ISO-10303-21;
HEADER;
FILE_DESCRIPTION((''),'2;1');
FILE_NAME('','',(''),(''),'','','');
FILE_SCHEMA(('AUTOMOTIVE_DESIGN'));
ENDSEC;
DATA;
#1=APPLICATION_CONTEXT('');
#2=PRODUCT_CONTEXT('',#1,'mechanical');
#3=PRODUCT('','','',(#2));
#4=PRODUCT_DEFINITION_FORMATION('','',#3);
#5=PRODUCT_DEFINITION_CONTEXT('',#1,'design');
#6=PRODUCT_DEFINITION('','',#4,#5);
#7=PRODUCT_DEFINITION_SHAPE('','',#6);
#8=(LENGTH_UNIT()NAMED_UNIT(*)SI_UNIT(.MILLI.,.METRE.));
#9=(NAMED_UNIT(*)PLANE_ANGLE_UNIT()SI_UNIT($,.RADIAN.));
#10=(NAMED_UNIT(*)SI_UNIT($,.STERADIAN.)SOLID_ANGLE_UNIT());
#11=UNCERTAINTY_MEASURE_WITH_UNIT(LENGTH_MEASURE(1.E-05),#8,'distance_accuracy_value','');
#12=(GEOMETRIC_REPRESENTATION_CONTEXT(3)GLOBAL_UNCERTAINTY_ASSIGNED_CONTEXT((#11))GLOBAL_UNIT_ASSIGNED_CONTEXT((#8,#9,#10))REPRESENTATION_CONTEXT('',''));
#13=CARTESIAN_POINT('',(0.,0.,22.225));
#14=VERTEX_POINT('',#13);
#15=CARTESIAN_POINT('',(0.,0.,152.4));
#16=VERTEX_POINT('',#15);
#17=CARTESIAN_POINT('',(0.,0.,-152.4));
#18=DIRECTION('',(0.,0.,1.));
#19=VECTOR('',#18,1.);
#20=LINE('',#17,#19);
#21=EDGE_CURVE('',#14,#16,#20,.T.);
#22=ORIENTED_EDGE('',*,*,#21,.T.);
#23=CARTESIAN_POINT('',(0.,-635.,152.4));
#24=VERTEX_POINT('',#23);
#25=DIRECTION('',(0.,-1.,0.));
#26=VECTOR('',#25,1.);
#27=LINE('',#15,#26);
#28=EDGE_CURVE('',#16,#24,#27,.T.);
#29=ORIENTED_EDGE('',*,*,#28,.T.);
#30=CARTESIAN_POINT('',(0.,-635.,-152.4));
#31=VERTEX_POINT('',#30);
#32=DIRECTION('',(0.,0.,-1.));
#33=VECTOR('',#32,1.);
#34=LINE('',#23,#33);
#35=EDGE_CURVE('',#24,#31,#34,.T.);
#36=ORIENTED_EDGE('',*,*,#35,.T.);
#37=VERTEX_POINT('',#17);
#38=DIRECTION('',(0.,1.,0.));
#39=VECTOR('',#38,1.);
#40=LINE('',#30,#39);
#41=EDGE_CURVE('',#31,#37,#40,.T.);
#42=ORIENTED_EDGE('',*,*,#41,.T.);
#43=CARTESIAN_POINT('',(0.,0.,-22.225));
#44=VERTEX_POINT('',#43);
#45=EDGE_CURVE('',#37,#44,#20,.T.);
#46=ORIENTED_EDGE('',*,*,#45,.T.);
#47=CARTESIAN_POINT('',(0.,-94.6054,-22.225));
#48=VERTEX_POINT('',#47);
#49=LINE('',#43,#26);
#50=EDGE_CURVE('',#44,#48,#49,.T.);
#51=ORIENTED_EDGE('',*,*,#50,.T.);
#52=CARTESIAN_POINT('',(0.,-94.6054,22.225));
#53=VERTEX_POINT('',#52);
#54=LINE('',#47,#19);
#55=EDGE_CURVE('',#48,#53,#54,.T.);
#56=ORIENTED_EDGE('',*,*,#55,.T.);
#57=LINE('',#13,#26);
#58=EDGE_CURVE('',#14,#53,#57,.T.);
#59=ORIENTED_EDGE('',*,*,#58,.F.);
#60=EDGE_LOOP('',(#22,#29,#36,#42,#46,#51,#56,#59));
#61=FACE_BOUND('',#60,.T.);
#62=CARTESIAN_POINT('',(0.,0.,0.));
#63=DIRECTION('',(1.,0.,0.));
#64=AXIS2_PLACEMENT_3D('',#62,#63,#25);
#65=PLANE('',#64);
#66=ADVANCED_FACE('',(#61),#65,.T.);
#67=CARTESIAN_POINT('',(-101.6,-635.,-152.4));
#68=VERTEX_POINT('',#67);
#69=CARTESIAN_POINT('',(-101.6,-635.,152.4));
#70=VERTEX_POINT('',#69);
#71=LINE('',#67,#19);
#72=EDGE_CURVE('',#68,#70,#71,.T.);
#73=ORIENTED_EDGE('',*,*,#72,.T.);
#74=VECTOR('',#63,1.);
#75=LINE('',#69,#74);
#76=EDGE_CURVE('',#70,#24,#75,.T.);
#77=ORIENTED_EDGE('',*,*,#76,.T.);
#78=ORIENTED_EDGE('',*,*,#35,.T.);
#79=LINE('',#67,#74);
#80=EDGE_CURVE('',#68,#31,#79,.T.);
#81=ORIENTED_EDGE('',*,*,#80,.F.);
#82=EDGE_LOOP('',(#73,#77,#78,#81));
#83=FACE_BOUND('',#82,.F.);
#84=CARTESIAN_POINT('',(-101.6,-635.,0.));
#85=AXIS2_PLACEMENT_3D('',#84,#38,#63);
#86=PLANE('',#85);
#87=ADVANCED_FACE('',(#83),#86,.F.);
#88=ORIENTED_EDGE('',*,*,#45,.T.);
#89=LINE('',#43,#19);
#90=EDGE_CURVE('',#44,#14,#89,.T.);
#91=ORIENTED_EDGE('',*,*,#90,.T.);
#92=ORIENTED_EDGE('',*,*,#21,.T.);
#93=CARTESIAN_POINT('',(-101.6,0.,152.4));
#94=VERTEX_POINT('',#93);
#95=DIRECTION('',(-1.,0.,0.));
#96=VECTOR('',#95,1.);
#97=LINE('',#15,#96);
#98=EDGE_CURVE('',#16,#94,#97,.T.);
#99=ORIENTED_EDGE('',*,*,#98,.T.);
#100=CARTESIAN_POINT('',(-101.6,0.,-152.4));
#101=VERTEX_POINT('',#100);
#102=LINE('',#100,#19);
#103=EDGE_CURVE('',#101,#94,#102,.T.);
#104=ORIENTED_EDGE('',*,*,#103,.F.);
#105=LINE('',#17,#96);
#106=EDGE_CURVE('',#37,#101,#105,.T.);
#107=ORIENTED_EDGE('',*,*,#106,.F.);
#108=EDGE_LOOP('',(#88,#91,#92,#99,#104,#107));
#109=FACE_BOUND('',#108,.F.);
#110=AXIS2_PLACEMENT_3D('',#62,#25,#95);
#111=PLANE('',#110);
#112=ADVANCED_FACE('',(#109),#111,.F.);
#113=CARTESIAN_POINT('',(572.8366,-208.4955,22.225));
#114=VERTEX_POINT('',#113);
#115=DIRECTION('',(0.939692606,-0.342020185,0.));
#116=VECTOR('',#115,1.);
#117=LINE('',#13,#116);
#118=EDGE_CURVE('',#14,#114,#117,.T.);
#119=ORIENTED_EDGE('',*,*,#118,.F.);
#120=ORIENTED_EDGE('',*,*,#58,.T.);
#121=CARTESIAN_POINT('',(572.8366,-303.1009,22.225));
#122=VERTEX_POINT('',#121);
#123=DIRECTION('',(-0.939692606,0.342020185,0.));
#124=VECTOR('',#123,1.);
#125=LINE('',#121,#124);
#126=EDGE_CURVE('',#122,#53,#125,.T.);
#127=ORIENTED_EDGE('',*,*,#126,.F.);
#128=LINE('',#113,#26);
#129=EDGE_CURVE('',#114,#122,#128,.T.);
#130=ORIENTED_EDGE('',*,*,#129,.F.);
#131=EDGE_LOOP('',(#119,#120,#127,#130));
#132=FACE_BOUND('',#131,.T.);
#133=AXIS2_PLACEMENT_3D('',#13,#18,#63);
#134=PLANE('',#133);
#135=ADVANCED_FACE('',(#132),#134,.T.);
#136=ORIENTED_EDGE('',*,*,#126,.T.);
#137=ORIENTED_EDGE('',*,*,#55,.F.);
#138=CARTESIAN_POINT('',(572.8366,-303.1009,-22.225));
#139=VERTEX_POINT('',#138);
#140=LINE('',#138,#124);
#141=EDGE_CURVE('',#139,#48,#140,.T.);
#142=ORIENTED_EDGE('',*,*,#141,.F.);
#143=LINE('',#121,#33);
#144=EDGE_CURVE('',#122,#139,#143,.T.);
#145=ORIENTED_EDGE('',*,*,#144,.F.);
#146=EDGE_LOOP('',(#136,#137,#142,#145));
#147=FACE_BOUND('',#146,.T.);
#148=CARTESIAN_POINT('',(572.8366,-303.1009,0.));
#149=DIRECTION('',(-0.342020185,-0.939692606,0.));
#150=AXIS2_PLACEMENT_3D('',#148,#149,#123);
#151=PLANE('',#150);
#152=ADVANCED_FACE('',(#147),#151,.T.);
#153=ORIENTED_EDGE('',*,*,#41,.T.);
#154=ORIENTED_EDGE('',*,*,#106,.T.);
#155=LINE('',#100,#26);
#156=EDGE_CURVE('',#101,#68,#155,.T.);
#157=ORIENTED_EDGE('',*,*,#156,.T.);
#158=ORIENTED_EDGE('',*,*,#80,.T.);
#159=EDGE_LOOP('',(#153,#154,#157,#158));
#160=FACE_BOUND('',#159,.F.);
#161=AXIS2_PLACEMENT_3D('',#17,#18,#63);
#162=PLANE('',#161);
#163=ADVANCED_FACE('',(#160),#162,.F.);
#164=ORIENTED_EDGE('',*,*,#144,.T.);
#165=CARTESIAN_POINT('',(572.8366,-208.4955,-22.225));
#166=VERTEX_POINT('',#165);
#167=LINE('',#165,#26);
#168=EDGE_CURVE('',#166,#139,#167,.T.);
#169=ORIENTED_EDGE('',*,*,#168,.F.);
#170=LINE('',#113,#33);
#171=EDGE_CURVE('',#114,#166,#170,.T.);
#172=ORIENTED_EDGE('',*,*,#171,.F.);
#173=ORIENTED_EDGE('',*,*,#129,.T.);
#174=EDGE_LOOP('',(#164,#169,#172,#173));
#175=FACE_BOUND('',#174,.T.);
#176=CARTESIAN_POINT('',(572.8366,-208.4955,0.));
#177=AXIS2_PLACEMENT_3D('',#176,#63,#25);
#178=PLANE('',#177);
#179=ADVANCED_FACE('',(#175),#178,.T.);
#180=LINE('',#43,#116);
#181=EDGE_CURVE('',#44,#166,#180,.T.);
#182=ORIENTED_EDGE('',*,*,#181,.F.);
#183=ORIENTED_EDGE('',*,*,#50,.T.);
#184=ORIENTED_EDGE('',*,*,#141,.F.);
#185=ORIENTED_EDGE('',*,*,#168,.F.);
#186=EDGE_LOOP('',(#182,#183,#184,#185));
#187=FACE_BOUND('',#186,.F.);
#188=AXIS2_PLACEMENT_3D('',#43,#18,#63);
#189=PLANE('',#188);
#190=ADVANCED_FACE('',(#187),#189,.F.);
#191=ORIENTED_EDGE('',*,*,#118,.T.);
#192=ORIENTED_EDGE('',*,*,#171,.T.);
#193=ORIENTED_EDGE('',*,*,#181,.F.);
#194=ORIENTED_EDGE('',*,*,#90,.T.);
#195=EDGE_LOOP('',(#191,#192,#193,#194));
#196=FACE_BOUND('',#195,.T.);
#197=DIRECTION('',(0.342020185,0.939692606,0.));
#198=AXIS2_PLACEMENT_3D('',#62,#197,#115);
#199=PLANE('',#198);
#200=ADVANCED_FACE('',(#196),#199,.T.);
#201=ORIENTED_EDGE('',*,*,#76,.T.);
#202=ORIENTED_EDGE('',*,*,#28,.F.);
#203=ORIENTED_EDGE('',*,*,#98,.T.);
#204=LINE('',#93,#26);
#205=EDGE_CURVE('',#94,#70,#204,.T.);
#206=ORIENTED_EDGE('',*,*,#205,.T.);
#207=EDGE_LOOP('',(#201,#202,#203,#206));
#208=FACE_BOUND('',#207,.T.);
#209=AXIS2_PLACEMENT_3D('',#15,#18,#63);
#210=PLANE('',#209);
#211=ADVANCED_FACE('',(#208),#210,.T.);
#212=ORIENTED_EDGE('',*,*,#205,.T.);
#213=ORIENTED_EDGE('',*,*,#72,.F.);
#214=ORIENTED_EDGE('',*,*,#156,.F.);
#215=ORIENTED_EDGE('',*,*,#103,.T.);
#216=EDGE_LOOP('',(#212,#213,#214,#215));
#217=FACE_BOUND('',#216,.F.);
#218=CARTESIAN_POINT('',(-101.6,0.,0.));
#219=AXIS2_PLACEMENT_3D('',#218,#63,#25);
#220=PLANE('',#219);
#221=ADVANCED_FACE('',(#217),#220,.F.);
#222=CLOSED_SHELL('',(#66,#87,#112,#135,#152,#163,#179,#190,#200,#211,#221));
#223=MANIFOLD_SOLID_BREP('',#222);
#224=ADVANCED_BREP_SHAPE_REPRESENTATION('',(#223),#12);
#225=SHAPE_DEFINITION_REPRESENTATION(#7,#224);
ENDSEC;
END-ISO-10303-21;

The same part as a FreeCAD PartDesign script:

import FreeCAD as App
import Part
import Sketcher
Q = App.Units.Quantity

doc = App.newDocument("Part")
body = doc.addObject("PartDesign::Body", "Body")

sketch1 = body.newObject("Sketcher::SketchObject", "Sketch")
sketch1.AttachmentSupport = (doc.getObject("XY_Plane"), [""])
sketch1.MapMode = "FlatFace"
sketch1.addGeometry([
    Part.LineSegment(App.Vector(0, -635, 0), App.Vector(0, 0, 0)),
    Part.LineSegment(App.Vector(0, 0, 0), App.Vector(-101.6, 0, 0)),
    Part.LineSegment(App.Vector(-101.6, 0, 0), App.Vector(-101.6, -635, 0)),
    Part.LineSegment(App.Vector(-101.6, -635, 0), App.Vector(0, -635, 0)),
], False)
sketch1.addConstraint([
    Sketcher.Constraint("Coincident", 0, 2, 1, 1),
    Sketcher.Constraint("Coincident", 1, 2, 2, 1),
    Sketcher.Constraint("Coincident", 2, 2, 3, 1),
    Sketcher.Constraint("Coincident", 3, 2, 0, 1),
    Sketcher.Constraint("Vertical", 0),
    Sketcher.Constraint("Horizontal", 1),
    Sketcher.Constraint("Vertical", 2),
    Sketcher.Constraint("Horizontal", 3),
    Sketcher.Constraint("Coincident", 0, 2, -1, 1),
    Sketcher.Constraint("DistanceX", 1, 2, 1, 1, Q("4 in")),
    Sketcher.Constraint("DistanceY", 0, 1, 0, 2, Q("25 in")),
])
pad1 = body.newObject("PartDesign::Pad", "Pad")
pad1.Profile = sketch1
pad1.Length = Q("12 in")
pad1.Midplane = True

sketch2 = body.newObject("Sketcher::SketchObject", "Sketch001")
sketch2.AttachmentSupport = (doc.getObject("XY_Plane"), [""])
sketch2.MapMode = "FlatFace"
sketch2.addGeometry([
    Part.LineSegment(App.Vector(572.8366, -208.4955, 0), App.Vector(0, 0, 0)),
    Part.LineSegment(App.Vector(0, 0, 0), App.Vector(0, -94.6054, 0)),
    Part.LineSegment(App.Vector(0, -94.6054, 0), App.Vector(572.8366, -303.1009, 0)),
    Part.LineSegment(App.Vector(572.8366, -303.1009, 0), App.Vector(572.8366, -208.4955, 0)),
], False)
sketch2.addConstraint([
    Sketcher.Constraint("Coincident", 0, 2, 1, 1),
    Sketcher.Constraint("Coincident", 1, 2, 2, 1),
    Sketcher.Constraint("Coincident", 2, 2, 3, 1),
    Sketcher.Constraint("Coincident", 3, 2, 0, 1),
    Sketcher.Constraint("Vertical", 1),
    Sketcher.Constraint("Vertical", 3),
    Sketcher.Constraint("Coincident", 0, 2, -1, 1),
    Sketcher.Constraint("Parallel", 0, 2),
    Sketcher.Constraint("Distance", 0, Q("24 in")),
    Sketcher.Constraint("Angle", 2, Q("-20 deg")),
    Sketcher.Constraint("DistanceY", 1, 2, 1, 1, Q("94.6054 mm")),
])
pad2 = body.newObject("PartDesign::Pad", "Pad001")
pad2.Profile = sketch2
pad2.Length = Q("1.75 in")
pad2.Midplane = True

doc.recompute()
